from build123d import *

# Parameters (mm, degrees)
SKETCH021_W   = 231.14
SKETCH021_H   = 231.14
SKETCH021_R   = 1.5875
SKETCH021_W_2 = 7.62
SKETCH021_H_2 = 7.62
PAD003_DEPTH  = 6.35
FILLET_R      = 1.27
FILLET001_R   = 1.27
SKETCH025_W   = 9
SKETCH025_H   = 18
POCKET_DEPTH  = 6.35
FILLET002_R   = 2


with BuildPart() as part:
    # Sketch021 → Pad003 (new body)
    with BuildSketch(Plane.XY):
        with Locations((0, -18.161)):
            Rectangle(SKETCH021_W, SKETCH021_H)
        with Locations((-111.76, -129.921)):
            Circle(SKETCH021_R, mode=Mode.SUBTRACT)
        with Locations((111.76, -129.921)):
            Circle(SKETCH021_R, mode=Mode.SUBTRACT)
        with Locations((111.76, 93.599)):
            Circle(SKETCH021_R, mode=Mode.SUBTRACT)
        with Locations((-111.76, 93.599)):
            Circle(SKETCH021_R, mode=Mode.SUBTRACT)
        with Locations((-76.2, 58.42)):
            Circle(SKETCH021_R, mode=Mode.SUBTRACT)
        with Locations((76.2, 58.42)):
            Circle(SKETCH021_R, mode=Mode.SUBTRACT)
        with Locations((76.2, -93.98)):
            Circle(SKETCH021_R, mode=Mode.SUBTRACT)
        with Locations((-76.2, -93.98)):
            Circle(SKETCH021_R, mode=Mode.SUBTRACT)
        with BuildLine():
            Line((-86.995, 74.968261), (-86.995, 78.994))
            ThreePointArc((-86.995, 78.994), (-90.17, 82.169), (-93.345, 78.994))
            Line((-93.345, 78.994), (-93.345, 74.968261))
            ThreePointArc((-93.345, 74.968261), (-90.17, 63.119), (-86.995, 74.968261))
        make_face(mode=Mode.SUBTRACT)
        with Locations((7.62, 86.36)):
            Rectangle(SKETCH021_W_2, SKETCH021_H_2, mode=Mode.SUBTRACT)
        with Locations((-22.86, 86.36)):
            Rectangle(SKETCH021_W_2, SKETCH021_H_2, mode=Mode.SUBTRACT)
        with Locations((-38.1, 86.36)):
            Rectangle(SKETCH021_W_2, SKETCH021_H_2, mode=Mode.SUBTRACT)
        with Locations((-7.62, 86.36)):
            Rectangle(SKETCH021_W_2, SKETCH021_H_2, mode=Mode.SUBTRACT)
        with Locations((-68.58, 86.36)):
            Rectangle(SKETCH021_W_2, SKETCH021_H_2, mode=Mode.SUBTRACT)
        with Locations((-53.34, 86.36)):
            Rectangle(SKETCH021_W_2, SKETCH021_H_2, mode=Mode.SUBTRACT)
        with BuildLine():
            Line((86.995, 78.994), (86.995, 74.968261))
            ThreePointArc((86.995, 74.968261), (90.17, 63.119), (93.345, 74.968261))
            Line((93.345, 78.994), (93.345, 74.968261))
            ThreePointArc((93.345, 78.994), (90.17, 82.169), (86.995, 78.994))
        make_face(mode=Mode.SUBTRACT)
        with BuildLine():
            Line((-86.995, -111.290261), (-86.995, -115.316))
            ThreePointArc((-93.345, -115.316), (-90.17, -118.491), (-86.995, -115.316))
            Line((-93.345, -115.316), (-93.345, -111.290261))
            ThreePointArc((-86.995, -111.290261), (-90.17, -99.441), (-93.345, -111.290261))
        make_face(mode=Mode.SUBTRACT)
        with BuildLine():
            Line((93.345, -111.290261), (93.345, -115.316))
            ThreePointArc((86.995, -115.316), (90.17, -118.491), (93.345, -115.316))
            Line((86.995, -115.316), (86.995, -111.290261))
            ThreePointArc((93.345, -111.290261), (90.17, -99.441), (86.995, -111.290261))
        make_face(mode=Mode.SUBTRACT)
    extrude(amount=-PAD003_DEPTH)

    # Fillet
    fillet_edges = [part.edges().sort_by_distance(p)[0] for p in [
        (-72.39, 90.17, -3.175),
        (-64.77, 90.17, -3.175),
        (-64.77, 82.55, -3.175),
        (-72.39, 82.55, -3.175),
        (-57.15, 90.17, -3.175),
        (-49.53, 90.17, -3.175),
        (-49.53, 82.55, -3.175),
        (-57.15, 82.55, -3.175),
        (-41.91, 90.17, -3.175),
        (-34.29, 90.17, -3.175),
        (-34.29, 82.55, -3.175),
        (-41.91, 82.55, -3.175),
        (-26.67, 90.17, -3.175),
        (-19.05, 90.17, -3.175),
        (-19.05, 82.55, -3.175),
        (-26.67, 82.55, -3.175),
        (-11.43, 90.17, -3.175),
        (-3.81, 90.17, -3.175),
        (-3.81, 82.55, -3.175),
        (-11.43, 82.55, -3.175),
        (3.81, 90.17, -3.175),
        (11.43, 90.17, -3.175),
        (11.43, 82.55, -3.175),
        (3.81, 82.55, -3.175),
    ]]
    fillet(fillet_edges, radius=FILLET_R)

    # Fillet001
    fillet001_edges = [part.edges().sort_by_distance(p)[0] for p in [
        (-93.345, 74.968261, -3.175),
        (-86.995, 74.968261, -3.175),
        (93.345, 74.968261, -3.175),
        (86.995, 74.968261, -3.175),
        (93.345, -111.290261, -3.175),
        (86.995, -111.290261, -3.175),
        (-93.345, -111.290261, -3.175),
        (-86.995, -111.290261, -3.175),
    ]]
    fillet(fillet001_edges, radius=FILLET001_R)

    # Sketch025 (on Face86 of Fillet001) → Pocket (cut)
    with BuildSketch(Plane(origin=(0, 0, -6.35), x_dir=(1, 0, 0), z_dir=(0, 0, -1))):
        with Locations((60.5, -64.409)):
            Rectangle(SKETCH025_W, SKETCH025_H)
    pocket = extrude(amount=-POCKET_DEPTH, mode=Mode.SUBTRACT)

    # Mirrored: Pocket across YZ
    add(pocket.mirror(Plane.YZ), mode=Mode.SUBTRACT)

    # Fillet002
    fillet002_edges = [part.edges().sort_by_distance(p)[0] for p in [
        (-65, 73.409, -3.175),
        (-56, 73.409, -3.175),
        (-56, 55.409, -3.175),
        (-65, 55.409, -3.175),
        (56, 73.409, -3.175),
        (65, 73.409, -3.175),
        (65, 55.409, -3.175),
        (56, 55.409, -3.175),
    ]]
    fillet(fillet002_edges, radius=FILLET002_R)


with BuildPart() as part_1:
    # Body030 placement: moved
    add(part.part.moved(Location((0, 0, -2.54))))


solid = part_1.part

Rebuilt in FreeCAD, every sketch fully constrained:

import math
import FreeCAD as App
import Part
import Sketcher
Q = App.Units.Quantity


def edges_at(feature, points):
    """Names of the edges that pass closest to the given points."""
    edges = feature.Shape.Edges
    near = lambda p: min(range(len(edges)), key=lambda i: edges[i].distToShape(Part.Vertex(*p))[0])
    return sorted({f"Edge{near(p) + 1}" for p in points})

doc = App.newDocument("Part")
body = doc.addObject("PartDesign::Body", "Body")

# Sketch on XY plane
sketch1 = body.newObject("Sketcher::SketchObject", "Sketch")
sketch1.AttachmentSupport = (doc.getObject("XY_Plane"), [""])
sketch1.MapMode = "FlatFace"
sketch1.addGeometry([
    Part.LineSegment(App.Vector(-115.6, 97.4, 0), App.Vector(-115.6, -133.7, 0)),  # 0
    Part.LineSegment(App.Vector(-115.6, -133.7, 0), App.Vector(115.6, -133.7, 0)),  # 1
    Part.LineSegment(App.Vector(115.6, -133.7, 0), App.Vector(115.6, 97.4, 0)),  # 2
    Part.LineSegment(App.Vector(115.6, 97.4, 0), App.Vector(-115.6, 97.4, 0)),  # 3
    Part.Circle(App.Vector(-111.8, -129.9, 0), App.Vector(0, 0, 1), 1.6),  # 4
    Part.ArcOfCircle(Part.Circle(App.Vector(-90.2, -105.8, 0), App.Vector(0, 0, 1), 6.3), math.radians(-60), math.radians(240)),  # 5
    Part.LineSegment(App.Vector(-87, -111.3, 0), App.Vector(-87, -115.3, 0)),  # 6
    Part.ArcOfCircle(Part.Circle(App.Vector(-90.2, -115.3, 0), App.Vector(0, 0, 1), 3.2), math.radians(180), math.radians(360)),  # 7
    Part.LineSegment(App.Vector(-93.3, -115.3, 0), App.Vector(-93.3, -111.3, 0)),  # 8
    Part.Circle(App.Vector(-76.2, -94, 0), App.Vector(0, 0, 1), 1.6),  # 9
    Part.Circle(App.Vector(111.8, -129.9, 0), App.Vector(0, 0, 1), 1.6),  # 10
    Part.ArcOfCircle(Part.Circle(App.Vector(90.2, -105.8, 0), App.Vector(0, 0, 1), 6.3), math.radians(-60), math.radians(240)),  # 11
    Part.LineSegment(App.Vector(93.3, -111.3, 0), App.Vector(93.3, -115.3, 0)),  # 12
    Part.ArcOfCircle(Part.Circle(App.Vector(90.2, -115.3, 0), App.Vector(0, 0, 1), 3.2), math.radians(180), math.radians(360)),  # 13
    Part.LineSegment(App.Vector(87, -115.3, 0), App.Vector(87, -111.3, 0)),  # 14
    Part.Circle(App.Vector(76.2, -94, 0), App.Vector(0, 0, 1), 1.6),  # 15
    Part.Circle(App.Vector(-76.2, 58.4, 0), App.Vector(0, 0, 1), 1.6),  # 16
    Part.LineSegment(App.Vector(-87, 79, 0), App.Vector(-87, 75, 0)),  # 17
    Part.ArcOfCircle(Part.Circle(App.Vector(-90.2, 69.5, 0), App.Vector(0, 0, 1), 6.3), math.radians(120), math.radians(420)),  # 18
    Part.LineSegment(App.Vector(-93.3, 75, 0), App.Vector(-93.3, 79, 0)),  # 19
    Part.ArcOfCircle(Part.Circle(App.Vector(-90.2, 79, 0), App.Vector(0, 0, 1), 3.2), math.radians(0), math.radians(180)),  # 20
    Part.Circle(App.Vector(-111.8, 93.6, 0), App.Vector(0, 0, 1), 1.6),  # 21
    Part.LineSegment(App.Vector(-64.8, 82.5, 0), App.Vector(-72.4, 82.5, 0)),  # 22
    Part.LineSegment(App.Vector(-72.4, 82.5, 0), App.Vector(-72.4, 90.2, 0)),  # 23
    Part.LineSegment(App.Vector(-72.4, 90.2, 0), App.Vector(-64.8, 90.2, 0)),  # 24
    Part.LineSegment(App.Vector(-64.8, 90.2, 0), App.Vector(-64.8, 82.5, 0)),  # 25
    Part.LineSegment(App.Vector(-49.5, 82.5, 0), App.Vector(-57.1, 82.5, 0)),  # 26
    Part.LineSegment(App.Vector(-57.1, 82.5, 0), App.Vector(-57.1, 90.2, 0)),  # 27
    Part.LineSegment(App.Vector(-57.1, 90.2, 0), App.Vector(-49.5, 90.2, 0)),  # 28
    Part.LineSegment(App.Vector(-49.5, 90.2, 0), App.Vector(-49.5, 82.5, 0)),  # 29
    Part.LineSegment(App.Vector(-34.3, 82.5, 0), App.Vector(-41.9, 82.5, 0)),  # 30
    Part.LineSegment(App.Vector(-41.9, 82.5, 0), App.Vector(-41.9, 90.2, 0)),  # 31
    Part.LineSegment(App.Vector(-41.9, 90.2, 0), App.Vector(-34.3, 90.2, 0)),  # 32
    Part.LineSegment(App.Vector(-34.3, 90.2, 0), App.Vector(-34.3, 82.5, 0)),  # 33
    Part.LineSegment(App.Vector(-19.1, 82.5, 0), App.Vector(-26.7, 82.5, 0)),  # 34
    Part.LineSegment(App.Vector(-26.7, 82.5, 0), App.Vector(-26.7, 90.2, 0)),  # 35
    Part.LineSegment(App.Vector(-26.7, 90.2, 0), App.Vector(-19.1, 90.2, 0)),  # 36
    Part.LineSegment(App.Vector(-19.1, 90.2, 0), App.Vector(-19.1, 82.5, 0)),  # 37
    Part.LineSegment(App.Vector(-3.8, 82.5, 0), App.Vector(-11.4, 82.5, 0)),  # 38
    Part.LineSegment(App.Vector(-11.4, 82.5, 0), App.Vector(-11.4, 90.2, 0)),  # 39
    Part.LineSegment(App.Vector(-11.4, 90.2, 0), App.Vector(-3.8, 90.2, 0)),  # 40
    Part.LineSegment(App.Vector(-3.8, 90.2, 0), App.Vector(-3.8, 82.5, 0)),  # 41
    Part.LineSegment(App.Vector(11.4, 82.5, 0), App.Vector(3.8, 82.5, 0)),  # 42
    Part.LineSegment(App.Vector(3.8, 82.5, 0), App.Vector(3.8, 90.2, 0)),  # 43
    Part.LineSegment(App.Vector(3.8, 90.2, 0), App.Vector(11.4, 90.2, 0)),  # 44
    Part.LineSegment(App.Vector(11.4, 90.2, 0), App.Vector(11.4, 82.5, 0)),  # 45
    Part.Circle(App.Vector(76.2, 58.4, 0), App.Vector(0, 0, 1), 1.6),  # 46
    Part.LineSegment(App.Vector(87, 75, 0), App.Vector(87, 79, 0)),  # 47
    Part.ArcOfCircle(Part.Circle(App.Vector(90.2, 79, 0), App.Vector(0, 0, 1), 3.2), math.radians(0), math.radians(180)),  # 48
    Part.LineSegment(App.Vector(93.3, 79, 0), App.Vector(93.3, 75, 0)),  # 49
    Part.ArcOfCircle(Part.Circle(App.Vector(90.2, 69.5, 0), App.Vector(0, 0, 1), 6.3), math.radians(120), math.radians(420)),  # 50
    Part.Circle(App.Vector(111.8, 93.6, 0), App.Vector(0, 0, 1), 1.6),  # 51
], False)
sketch1.addConstraint([
    Sketcher.Constraint("Coincident", 0, 2, 1, 1),
    Sketcher.Constraint("Coincident", 1, 2, 2, 1),
    Sketcher.Constraint("Coincident", 2, 2, 3, 1),
    Sketcher.Constraint("Coincident", 3, 2, 0, 1),
    Sketcher.Constraint("Coincident", 5, 1, 6, 1),
    Sketcher.Constraint("Tangent", 6, 2, 7, 2),
    Sketcher.Constraint("Tangent", 7, 1, 8, 1),
    Sketcher.Constraint("Coincident", 8, 2, 5, 2),
    Sketcher.Constraint("Coincident", 11, 1, 12, 1),
    Sketcher.Constraint("Tangent", 12, 2, 13, 2),
    Sketcher.Constraint("Tangent", 13, 1, 14, 1),
    Sketcher.Constraint("Coincident", 14, 2, 11, 2),
    Sketcher.Constraint("Coincident", 17, 2, 18, 2),
    Sketcher.Constraint("Coincident", 18, 1, 19, 1),
    Sketcher.Constraint("Tangent", 19, 2, 20, 2),
    Sketcher.Constraint("Tangent", 20, 1, 17, 1),
    Sketcher.Constraint("Coincident", 22, 2, 23, 1),
    Sketcher.Constraint("Coincident", 23, 2, 24, 1),
    Sketcher.Constraint("Coincident", 24, 2, 25, 1),
    Sketcher.Constraint("Coincident", 25, 2, 22, 1),
    Sketcher.Constraint("Coincident", 26, 2, 27, 1),
    Sketcher.Constraint("Coincident", 27, 2, 28, 1),
    Sketcher.Constraint("Coincident", 28, 2, 29, 1),
    Sketcher.Constraint("Coincident", 29, 2, 26, 1),
    Sketcher.Constraint("Coincident", 30, 2, 31, 1),
    Sketcher.Constraint("Coincident", 31, 2, 32, 1),
    Sketcher.Constraint("Coincident", 32, 2, 33, 1),
    Sketcher.Constraint("Coincident", 33, 2, 30, 1),
    Sketcher.Constraint("Coincident", 34, 2, 35, 1),
    Sketcher.Constraint("Coincident", 35, 2, 36, 1),
    Sketcher.Constraint("Coincident", 36, 2, 37, 1),
    Sketcher.Constraint("Coincident", 37, 2, 34, 1),
    Sketcher.Constraint("Coincident", 38, 2, 39, 1),
    Sketcher.Constraint("Coincident", 39, 2, 40, 1),
    Sketcher.Constraint("Coincident", 40, 2, 41, 1),
    Sketcher.Constraint("Coincident", 41, 2, 38, 1),
    Sketcher.Constraint("Coincident", 42, 2, 43, 1),
    Sketcher.Constraint("Coincident", 43, 2, 44, 1),
    Sketcher.Constraint("Coincident", 44, 2, 45, 1),
    Sketcher.Constraint("Coincident", 45, 2, 42, 1),
    Sketcher.Constraint("Tangent", 47, 2, 48, 2),
    Sketcher.Constraint("Tangent", 48, 1, 49, 1),
    Sketcher.Constraint("Coincident", 49, 2, 50, 2),
    Sketcher.Constraint("Coincident", 50, 1, 47, 1),
    Sketcher.Constraint("Vertical", 0),
    Sketcher.Constraint("Horizontal", 1),
    Sketcher.Constraint("Vertical", 2),
    Sketcher.Constraint("Horizontal", 3),
    Sketcher.Constraint("Vertical", 6),
    Sketcher.Constraint("Vertical", 8),
    Sketcher.Constraint("Vertical", 12),
    Sketcher.Constraint("Vertical", 14),
    Sketcher.Constraint("Vertical", 17),
    Sketcher.Constraint("Vertical", 19),
    Sketcher.Constraint("Horizontal", 22),
    Sketcher.Constraint("Vertical", 23),
    Sketcher.Constraint("Horizontal", 24),
    Sketcher.Constraint("Vertical", 25),
    Sketcher.Constraint("Horizontal", 26),
    Sketcher.Constraint("Vertical", 27),
    Sketcher.Constraint("Horizontal", 28),
    Sketcher.Constraint("Vertical", 29),
    Sketcher.Constraint("Horizontal", 30),
    Sketcher.Constraint("Vertical", 31),
    Sketcher.Constraint("Horizontal", 32),
    Sketcher.Constraint("Vertical", 33),
    Sketcher.Constraint("Horizontal", 34),
    Sketcher.Constraint("Vertical", 35),
    Sketcher.Constraint("Horizontal", 36),
    Sketcher.Constraint("Vertical", 37),
    Sketcher.Constraint("Horizontal", 38),
    Sketcher.Constraint("Vertical", 39),
    Sketcher.Constraint("Horizontal", 40),
    Sketcher.Constraint("Vertical", 41),
    Sketcher.Constraint("Horizontal", 42),
    Sketcher.Constraint("Vertical", 43),
    Sketcher.Constraint("Horizontal", 44),
    Sketcher.Constraint("Vertical", 45),
    Sketcher.Constraint("Vertical", 47),
    Sketcher.Constraint("Vertical", 49),
    Sketcher.Constraint("Equal", 4, 9),
    Sketcher.Constraint("Equal", 9, 10),
    Sketcher.Constraint("Equal", 5, 11),
    Sketcher.Constraint("Equal", 7, 13),
    Sketcher.Constraint("Equal", 10, 15),
    Sketcher.Constraint("Equal", 15, 16),
    Sketcher.Constraint("Equal", 11, 18),
    Sketcher.Constraint("Equal", 13, 20),
    Sketcher.Constraint("Equal", 16, 21),
    Sketcher.Constraint("Equal", 21, 46),
    Sketcher.Constraint("Equal", 20, 48),
    Sketcher.Constraint("Equal", 18, 50),
    Sketcher.Constraint("Equal", 46, 51),
    Sketcher.Constraint("Symmetric", 4, 3, 10, 3, -2),
    Sketcher.Constraint("Symmetric", 5, 3, 11, 3, -2),
    Sketcher.Constraint("Symmetric", 7, 3, 13, 3, -2),
    Sketcher.Constraint("Symmetric", 9, 3, 15, 3, -2),
    Sketcher.Constraint("Symmetric", 16, 3, 46, 3, -2),
    Sketcher.Constraint("Symmetric", 20, 3, 48, 3, -2),
    Sketcher.Constraint("Symmetric", 18, 3, 50, 3, -2),
    Sketcher.Constraint("Symmetric", 21, 3, 51, 3, -2),
    Sketcher.Constraint("Symmetric", 41, 2, 42, 2, -2),
    Sketcher.Constraint("Symmetric", 39, 2, 44, 2, -2),
    Sketcher.Constraint("Horizontal", 5, 1, 8, 2),
    Sketcher.Constraint("Horizontal", 17, 2, 18, 1),
    Sketcher.Constraint("Horizontal", 25, 2, 26, 2),
    Sketcher.Constraint("Horizontal", 24, 2, 27, 2),
    Sketcher.Constraint("Horizontal", 29, 2, 30, 2),
    Sketcher.Constraint("Horizontal", 28, 2, 31, 2),
    Sketcher.Constraint("Horizontal", 33, 2, 34, 2),
    Sketcher.Constraint("Horizontal", 32, 2, 35, 2),
    Sketcher.Constraint("Horizontal", 37, 2, 38, 2),
    Sketcher.Constraint("Horizontal", 36, 2, 39, 2),
    Sketcher.Constraint("Vertical", 9, 3, 16, 3),
    Sketcher.Constraint("Vertical", 7, 3, 18, 3),
    Sketcher.Constraint("Vertical", 4, 3, 21, 3),
    Sketcher.Constraint("Equal", 24, 26),
    Sketcher.Constraint("Equal", 28, 30),
    Sketcher.Constraint("Equal", 32, 34),
    Sketcher.Constraint("Equal", 36, 38),
    Sketcher.Constraint("Equal", 3, 0),
    Sketcher.Constraint("Equal", 14, 17),
    Sketcher.Constraint("Equal", 44, 23),
    Sketcher.Constraint("Radius", 5, Q("0.25 in")),
    Sketcher.Constraint("Diameter", 4, Q("0.125 in")),
    Sketcher.Constraint("DistanceX", 1, 1, 1, 2, Q("9.1 in")),
    Sketcher.Constraint("DistanceX", 22, 2, 22, 1, Q("0.3 in")),
    Sketcher.Constraint("DistanceX", 9, 3, -1, 1, Q("3 in")),
    Sketcher.Constraint("Radius", 7, Q("0.125 in")),
    Sketcher.Constraint("DistanceY", 9, 3, 16, 3, Q("6 in")),
    Sketcher.Constraint("DistanceX", 0, 2, 7, 3, Q("1 in")),
    Sketcher.Constraint("DistanceX", 13, 3, 1, 2, Q("1 in")),
    Sketcher.Constraint("DistanceX", 20, 3, 24, 2, Q("1 in")),
    Sketcher.Constraint("DistanceX", 4, 3, -1, 1, Q("4.4 in")),
    Sketcher.Constraint("DistanceY", 9, 3, -1, 1, Q("3.7 in")),
    Sketcher.Constraint("DistanceY", 5, 3, 18, 3, Q("6.9 in")),
    Sketcher.Constraint("DistanceY", 0, 2, 5, 3, Q("1.1 in")),
    Sketcher.Constraint("DistanceX", 25, 2, 26, 2, Q("0.3 in")),
    Sketcher.Constraint("DistanceX", 29, 2, 30, 2, Q("0.3 in")),
    Sketcher.Constraint("DistanceX", 33, 2, 34, 2, Q("0.3 in")),
    Sketcher.Constraint("DistanceX", 37, 2, 38, 2, Q("0.3 in")),
    Sketcher.Constraint("DistanceY", 7, 3, -1, 1, Q("4.54 in")),
    Sketcher.Constraint("DistanceY", -1, 1, 20, 3, Q("3.11 in")),
    Sketcher.Constraint("DistanceY", -1, 1, 22, 2, Q("3.25 in")),
    Sketcher.Constraint("DistanceY", 4, 3, 5, 3, Q("0.95 in")),
    Sketcher.Constraint("DistanceY", 18, 3, 21, 3, Q("0.95 in")),
])
pad1 = body.newObject("PartDesign::Pad", "Pad")
pad1.Profile = sketch1
pad1.Length = Q("0.25 in")
pad1.Reversed = True
doc.recompute()

fillet = body.newObject("PartDesign::Fillet", "Fillet")
fillet.Base = (pad1, edges_at(pad1, [
    (-72.39, 90.17, -3.175),
    (-64.77, 90.17, -3.175),
    (-64.77, 82.55, -3.175),
    (-72.39, 82.55, -3.175),
    (-57.15, 90.17, -3.175),
    (-49.53, 90.17, -3.175),
    (-49.53, 82.55, -3.175),
    (-57.15, 82.55, -3.175),
    (-41.91, 90.17, -3.175),
    (-34.29, 90.17, -3.175),
    (-34.29, 82.55, -3.175),
    (-41.91, 82.55, -3.175),
    (-26.67, 90.17, -3.175),
    (-19.05, 90.17, -3.175),
    (-19.05, 82.55, -3.175),
    (-26.67, 82.55, -3.175),
    (-11.43, 90.17, -3.175),
    (-3.81, 90.17, -3.175),
    (-3.81, 82.55, -3.175),
    (-11.43, 82.55, -3.175),
    (3.81, 90.17, -3.175),
    (11.43, 90.17, -3.175),
    (11.43, 82.55, -3.175),
    (3.81, 82.55, -3.175),
]))
fillet.Radius = Q("0.05 in")
doc.recompute()

fillet2 = body.newObject("PartDesign::Fillet", "Fillet001")
fillet2.Base = (fillet, edges_at(fillet, [
    (-93.345, 74.968, -3.175),
    (-86.995, 74.968, -3.175),
    (93.345, 74.968, -3.175),
    (86.995, 74.968, -3.175),
    (93.345, -111.29, -3.175),
    (86.995, -111.29, -3.175),
    (-93.345, -111.29, -3.175),
    (-86.995, -111.29, -3.175),
]))
fillet2.Radius = Q("0.05 in")

# Sketch on XY plane
sketch2 = body.newObject("Sketcher::SketchObject", "Sketch001")
sketch2.AttachmentSupport = (doc.getObject("XY_Plane"), [""])
sketch2.MapMode = "FlatFace"
sketch2.AttachmentOffset = App.Placement(App.Vector(0, 0, -0.25 * 25.4), App.Rotation())
sketch2.addGeometry([
    Part.LineSegment(App.Vector(56, 55, 0), App.Vector(56, 73, 0)),
    Part.LineSegment(App.Vector(56, 73, 0), App.Vector(65, 73, 0)),
    Part.LineSegment(App.Vector(65, 73, 0), App.Vector(65, 55, 0)),
    Part.LineSegment(App.Vector(65, 55, 0), App.Vector(56, 55, 0)),
], False)
sketch2.addConstraint([
    Sketcher.Constraint("Coincident", 0, 2, 1, 1),
    Sketcher.Constraint("Coincident", 1, 2, 2, 1),
    Sketcher.Constraint("Coincident", 2, 2, 3, 1),
    Sketcher.Constraint("Coincident", 3, 2, 0, 1),
    Sketcher.Constraint("Vertical", 0),
    Sketcher.Constraint("Horizontal", 1),
    Sketcher.Constraint("Vertical", 2),
    Sketcher.Constraint("Horizontal", 3),
    Sketcher.Constraint("DistanceX", 1, 1, 1, 2, Q("9 mm")),
    Sketcher.Constraint("DistanceY", 0, 1, 0, 2, Q("18 mm")),
    Sketcher.Constraint("DistanceX", -1, 1, 0, 2, Q("56 mm")),
    Sketcher.Constraint("DistanceY", -1, 1, 0, 2, Q("73.409 mm")),
])
pocket1 = body.newObject("PartDesign::Pocket", "Pocket")
pocket1.Profile = sketch2
pocket1.Length = Q("0.25 in")
pocket1.Reversed = True
doc.recompute()

mirrored = body.newObject("PartDesign::Mirrored", "Mirrored")
mirrored.Originals = [pocket1]
mirrored.MirrorPlane = (doc.getObject("YZ_Plane"), [""])
body.Tip = mirrored
doc.recompute()

fillet3 = body.newObject("PartDesign::Fillet", "Fillet002")
fillet3.Base = (mirrored, edges_at(mirrored, [
    (-65, 73.409, -3.175),
    (-56, 73.409, -3.175),
    (-56, 55.409, -3.175),
    (-65, 55.409, -3.175),
    (56, 73.409, -3.175),
    (65, 73.409, -3.175),
    (65, 55.409, -3.175),
    (56, 55.409, -3.175),
]))
fillet3.Radius = 2
body2 = doc.addObject("PartDesign::Body", "Body001")
doc.recompute()

body.Placement = App.Placement(App.Vector(0, 0, -2.54), App.Rotation(App.Vector(0, 0, 1), 0))
boolean = body2.newObject("PartDesign::Boolean", "Boolean")
boolean.Type = "Fuse"
boolean.addObjects([body])

doc.recompute()
